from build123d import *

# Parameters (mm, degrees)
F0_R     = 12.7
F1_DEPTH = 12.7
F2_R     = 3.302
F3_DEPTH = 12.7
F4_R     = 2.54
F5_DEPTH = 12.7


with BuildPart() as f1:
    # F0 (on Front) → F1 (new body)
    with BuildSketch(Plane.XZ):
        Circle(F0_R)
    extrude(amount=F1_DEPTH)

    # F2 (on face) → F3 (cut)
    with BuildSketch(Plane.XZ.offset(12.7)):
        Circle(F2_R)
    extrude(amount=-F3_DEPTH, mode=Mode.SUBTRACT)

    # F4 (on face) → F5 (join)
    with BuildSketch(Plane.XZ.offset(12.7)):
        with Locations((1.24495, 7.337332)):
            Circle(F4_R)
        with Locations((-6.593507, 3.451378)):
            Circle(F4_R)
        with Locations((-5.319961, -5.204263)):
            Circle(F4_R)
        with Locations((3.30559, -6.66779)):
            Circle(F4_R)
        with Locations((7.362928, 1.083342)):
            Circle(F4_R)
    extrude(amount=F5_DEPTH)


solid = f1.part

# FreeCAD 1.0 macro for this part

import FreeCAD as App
import Part
import Sketcher
Q = App.Units.Quantity

doc = App.newDocument("Part")
params = doc.addObject("Spreadsheet::Sheet", "Params")
for row, (alias, value) in enumerate([
    ("sketch1_diameter", "1 in"),
    ("pad1_length", "0.5 in"),
    ("sketch2_diameter", "0.26 in"),
    ("pocket1_length", "0.5 in"),
    ("sketch3_diameter", "0.2 in"),
    ("pad2_length", "0.5 in"),
], start=1):
    params.set(f"A{row}", alias)
    params.set(f"B{row}", "=" + value)
    params.setAlias(f"B{row}", alias)

body = doc.addObject("PartDesign::Body", "Body")

sketch1 = doc.addObject("Sketcher::SketchObject", "Sketch")
body.addObject(sketch1)
sketch1.AttachmentSupport = (doc.XZ_Plane, [""])
sketch1.MapMode = "FlatFace"
sketch1.addGeometry(Part.Circle(App.Vector(0, 0, 0), App.Vector(0, 0, 1), 13), False)
sketch1.addConstraint([
    Sketcher.Constraint("Coincident", 0, 3, -1, 1),
    Sketcher.Constraint("Diameter", 0, Q("1 in")),
])
sketch1.setExpression("Constraints[1]", "Params.sketch1_diameter")
pad1 = doc.addObject("PartDesign::Pad", "Pad")
body.addObject(pad1)
pad1.Profile = sketch1
pad1.setExpression("Length", "Params.pad1_length")

sketch2 = doc.addObject("Sketcher::SketchObject", "Sketch001")
body.addObject(sketch2)
sketch2.AttachmentSupport = (doc.XZ_Plane, [""])
sketch2.MapMode = "FlatFace"
sketch2.AttachmentOffset = App.Placement(App.Vector(0, 0, 0.5 * 25.4), App.Rotation())
sketch2.addGeometry(Part.Circle(App.Vector(0, 0, 0), App.Vector(0, 0, 1), 3.3), False)
sketch2.addConstraint([
    Sketcher.Constraint("Coincident", 0, 3, -1, 1),
    Sketcher.Constraint("Diameter", 0, Q("0.26 in")),
])
sketch2.setExpression("Constraints[1]", "Params.sketch2_diameter")
pocket1 = doc.addObject("PartDesign::Pocket", "Pocket")
body.addObject(pocket1)
pocket1.Profile = sketch2
pocket1.setExpression("Length", "Params.pocket1_length")

sketch3 = doc.addObject("Sketcher::SketchObject", "Sketch002")
body.addObject(sketch3)
sketch3.AttachmentSupport = (doc.XZ_Plane, [""])
sketch3.MapMode = "FlatFace"
sketch3.AttachmentOffset = App.Placement(App.Vector(0, 0, 0.5 * 25.4), App.Rotation())
sketch3.addGeometry([
    Part.Circle(App.Vector(1.2, 7.3, 0), App.Vector(0, 0, 1), 2.5),
    Part.Circle(App.Vector(-6.6, 3.5, 0), App.Vector(0, 0, 1), 2.5),
    Part.Circle(App.Vector(-5.3, -5.2, 0), App.Vector(0, 0, 1), 2.5),
    Part.Circle(App.Vector(3.3, -6.7, 0), App.Vector(0, 0, 1), 2.5),
    Part.Circle(App.Vector(7.4, 1.1, 0), App.Vector(0, 0, 1), 2.5),
], False)
sketch3.addConstraint([
    Sketcher.Constraint("Equal", 0, 1),
    Sketcher.Constraint("Equal", 1, 2),
    Sketcher.Constraint("Equal", 2, 3),
    Sketcher.Constraint("Equal", 3, 4),
    Sketcher.Constraint("Diameter", 0, Q("0.2 in")),
    Sketcher.Constraint("DistanceX", -1, 1, 0, 3, Q("1.24495 mm")),
    Sketcher.Constraint("DistanceY", -1, 1, 1, 3, Q("3.451378 mm")),
    Sketcher.Constraint("DistanceX", 2, 3, -1, 1, Q("5.319961 mm")),
    Sketcher.Constraint("DistanceX", -1, 1, 3, 3, Q("3.30559 mm")),
    Sketcher.Constraint("DistanceY", 3, 3, -1, 1, Q("6.66779 mm")),
    Sketcher.Constraint("DistanceY", 2, 3, 1, 3, Q("8.655641 mm")),
    Sketcher.Constraint("DistanceY", 4, 3, 0, 3, Q("6.25399 mm")),
    Sketcher.Constraint("DistanceX", 2, 3, 4, 3, Q("12.682889 mm")),
    Sketcher.Constraint("DistanceY", -1, 1, 0, 3, Q("7.337332 mm")),
    Sketcher.Constraint("DistanceX", 1, 3, -1, 1, Q("6.593507 mm")),
])
sketch3.setExpression("Constraints[4]", "Params.sketch3_diameter")
pad2 = doc.addObject("PartDesign::Pad", "Pad001")
body.addObject(pad2)
pad2.Profile = sketch3
pad2.setExpression("Length", "Params.pad2_length")

doc.recompute()
